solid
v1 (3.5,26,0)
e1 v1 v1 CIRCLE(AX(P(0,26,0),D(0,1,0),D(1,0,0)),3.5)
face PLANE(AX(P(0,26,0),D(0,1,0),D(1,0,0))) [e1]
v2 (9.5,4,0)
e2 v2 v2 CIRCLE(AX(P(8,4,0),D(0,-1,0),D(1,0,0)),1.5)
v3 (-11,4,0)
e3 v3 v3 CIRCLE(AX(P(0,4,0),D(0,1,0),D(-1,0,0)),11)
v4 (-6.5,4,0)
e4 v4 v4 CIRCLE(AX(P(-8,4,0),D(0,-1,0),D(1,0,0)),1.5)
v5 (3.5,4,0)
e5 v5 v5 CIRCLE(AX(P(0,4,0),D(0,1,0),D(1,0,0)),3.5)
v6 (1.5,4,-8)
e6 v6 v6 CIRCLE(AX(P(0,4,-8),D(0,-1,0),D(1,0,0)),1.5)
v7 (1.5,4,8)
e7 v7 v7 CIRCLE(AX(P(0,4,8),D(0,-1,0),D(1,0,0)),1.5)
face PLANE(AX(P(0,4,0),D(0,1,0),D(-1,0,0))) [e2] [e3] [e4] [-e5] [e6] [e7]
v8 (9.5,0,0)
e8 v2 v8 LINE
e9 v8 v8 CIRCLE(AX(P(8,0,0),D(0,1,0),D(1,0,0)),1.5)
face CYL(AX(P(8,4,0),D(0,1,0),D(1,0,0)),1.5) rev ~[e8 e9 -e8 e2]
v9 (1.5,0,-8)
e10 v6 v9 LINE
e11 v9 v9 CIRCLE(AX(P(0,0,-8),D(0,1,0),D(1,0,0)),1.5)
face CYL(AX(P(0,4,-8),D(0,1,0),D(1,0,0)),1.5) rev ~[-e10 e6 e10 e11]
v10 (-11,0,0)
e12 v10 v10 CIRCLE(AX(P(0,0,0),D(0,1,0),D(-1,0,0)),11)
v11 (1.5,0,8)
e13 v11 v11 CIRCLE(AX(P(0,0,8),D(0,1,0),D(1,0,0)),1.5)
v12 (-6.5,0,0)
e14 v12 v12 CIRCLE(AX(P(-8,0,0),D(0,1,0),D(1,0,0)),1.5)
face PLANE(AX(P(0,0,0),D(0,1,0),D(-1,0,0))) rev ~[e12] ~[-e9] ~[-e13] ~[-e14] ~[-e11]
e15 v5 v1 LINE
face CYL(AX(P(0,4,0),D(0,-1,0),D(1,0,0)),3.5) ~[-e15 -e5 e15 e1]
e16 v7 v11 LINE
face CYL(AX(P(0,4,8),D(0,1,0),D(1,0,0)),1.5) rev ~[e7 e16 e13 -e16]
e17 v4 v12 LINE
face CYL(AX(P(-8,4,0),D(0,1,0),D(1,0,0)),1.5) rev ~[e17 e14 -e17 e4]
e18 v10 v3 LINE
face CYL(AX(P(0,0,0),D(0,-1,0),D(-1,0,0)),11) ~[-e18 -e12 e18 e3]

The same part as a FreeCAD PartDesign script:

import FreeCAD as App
import Part
import Sketcher

doc = App.newDocument("Part")
body = doc.addObject("PartDesign::Body", "Body")

# Sketch on XZ plane
sketch1 = body.newObject("Sketcher::SketchObject", "Sketch")
sketch1.AttachmentSupport = (doc.getObject("XZ_Plane"), [""])
sketch1.MapMode = "FlatFace"
sketch1.addGeometry(Part.Circle(App.Vector(0, 0, 0), App.Vector(0, 0, 1), 11), False)
sketch1.addConstraint([
    Sketcher.Constraint("Coincident", 0, 3, -1, 1),
    Sketcher.Constraint("Diameter", 0, 22.0),
])
pad1 = body.newObject("PartDesign::Pad", "Pad")
pad1.Profile = sketch1
pad1.Length = 4
pad1.Reversed = True

# Sketch on XZ plane
sketch2 = body.newObject("Sketcher::SketchObject", "Sketch001")
sketch2.AttachmentSupport = (doc.getObject("XZ_Plane"), [""])
sketch2.MapMode = "FlatFace"
sketch2.AttachmentOffset = App.Placement(App.Vector(0, 0, -4), App.Rotation())
sketch2.addGeometry([
    Part.Circle(App.Vector(8, 0, 0), App.Vector(0, 0, 1), 1.5),
    Part.Circle(App.Vector(0, -8, 0), App.Vector(0, 0, 1), 1.5),
    Part.Circle(App.Vector(0, 8, 0), App.Vector(0, 0, 1), 1.5),
    Part.Circle(App.Vector(-8, 0, 0), App.Vector(0, 0, 1), 1.5),
], False)
sketch2.addConstraint([
    Sketcher.Constraint("Equal", 0, 1),
    Sketcher.Constraint("Equal", 1, 2),
    Sketcher.Constraint("Equal", 2, 3),
    Sketcher.Constraint("Symmetric", 1, 3, 2, 3, -1, 1),
    Sketcher.Constraint("Symmetric", 0, 3, 3, 3, -1, 1),
    Sketcher.Constraint("PointOnObject", 0, 3, -1),
    Sketcher.Constraint("PointOnObject", 1, 3, -2),
    Sketcher.Constraint("Diameter", 0, 3.0),
    Sketcher.Constraint("DistanceY", 1, 3, 2, 3, 16.0),
    Sketcher.Constraint("DistanceX", 3, 3, 0, 3, 16.0),
])
pocket1 = body.newObject("PartDesign::Pocket", "Pocket")
pocket1.Profile = sketch2
pocket1.Length = 4
pocket1.Reversed = True

# Sketch on XZ plane
sketch3 = body.newObject("Sketcher::SketchObject", "Sketch002")
sketch3.AttachmentSupport = (doc.getObject("XZ_Plane"), [""])
sketch3.MapMode = "FlatFace"
sketch3.AttachmentOffset = App.Placement(App.Vector(0, 0, -4), App.Rotation())
sketch3.addGeometry(Part.Circle(App.Vector(0, 0, 0), App.Vector(0, 0, 1), 3.5), False)
sketch3.addConstraint([
    Sketcher.Constraint("Coincident", 0, 3, -1, 1),
    Sketcher.Constraint("Diameter", 0, 7.0),
])
pad2 = body.newObject("PartDesign::Pad", "Pad001")
pad2.Profile = sketch3
pad2.Length = 22
pad2.Reversed = True

doc.recompute()
